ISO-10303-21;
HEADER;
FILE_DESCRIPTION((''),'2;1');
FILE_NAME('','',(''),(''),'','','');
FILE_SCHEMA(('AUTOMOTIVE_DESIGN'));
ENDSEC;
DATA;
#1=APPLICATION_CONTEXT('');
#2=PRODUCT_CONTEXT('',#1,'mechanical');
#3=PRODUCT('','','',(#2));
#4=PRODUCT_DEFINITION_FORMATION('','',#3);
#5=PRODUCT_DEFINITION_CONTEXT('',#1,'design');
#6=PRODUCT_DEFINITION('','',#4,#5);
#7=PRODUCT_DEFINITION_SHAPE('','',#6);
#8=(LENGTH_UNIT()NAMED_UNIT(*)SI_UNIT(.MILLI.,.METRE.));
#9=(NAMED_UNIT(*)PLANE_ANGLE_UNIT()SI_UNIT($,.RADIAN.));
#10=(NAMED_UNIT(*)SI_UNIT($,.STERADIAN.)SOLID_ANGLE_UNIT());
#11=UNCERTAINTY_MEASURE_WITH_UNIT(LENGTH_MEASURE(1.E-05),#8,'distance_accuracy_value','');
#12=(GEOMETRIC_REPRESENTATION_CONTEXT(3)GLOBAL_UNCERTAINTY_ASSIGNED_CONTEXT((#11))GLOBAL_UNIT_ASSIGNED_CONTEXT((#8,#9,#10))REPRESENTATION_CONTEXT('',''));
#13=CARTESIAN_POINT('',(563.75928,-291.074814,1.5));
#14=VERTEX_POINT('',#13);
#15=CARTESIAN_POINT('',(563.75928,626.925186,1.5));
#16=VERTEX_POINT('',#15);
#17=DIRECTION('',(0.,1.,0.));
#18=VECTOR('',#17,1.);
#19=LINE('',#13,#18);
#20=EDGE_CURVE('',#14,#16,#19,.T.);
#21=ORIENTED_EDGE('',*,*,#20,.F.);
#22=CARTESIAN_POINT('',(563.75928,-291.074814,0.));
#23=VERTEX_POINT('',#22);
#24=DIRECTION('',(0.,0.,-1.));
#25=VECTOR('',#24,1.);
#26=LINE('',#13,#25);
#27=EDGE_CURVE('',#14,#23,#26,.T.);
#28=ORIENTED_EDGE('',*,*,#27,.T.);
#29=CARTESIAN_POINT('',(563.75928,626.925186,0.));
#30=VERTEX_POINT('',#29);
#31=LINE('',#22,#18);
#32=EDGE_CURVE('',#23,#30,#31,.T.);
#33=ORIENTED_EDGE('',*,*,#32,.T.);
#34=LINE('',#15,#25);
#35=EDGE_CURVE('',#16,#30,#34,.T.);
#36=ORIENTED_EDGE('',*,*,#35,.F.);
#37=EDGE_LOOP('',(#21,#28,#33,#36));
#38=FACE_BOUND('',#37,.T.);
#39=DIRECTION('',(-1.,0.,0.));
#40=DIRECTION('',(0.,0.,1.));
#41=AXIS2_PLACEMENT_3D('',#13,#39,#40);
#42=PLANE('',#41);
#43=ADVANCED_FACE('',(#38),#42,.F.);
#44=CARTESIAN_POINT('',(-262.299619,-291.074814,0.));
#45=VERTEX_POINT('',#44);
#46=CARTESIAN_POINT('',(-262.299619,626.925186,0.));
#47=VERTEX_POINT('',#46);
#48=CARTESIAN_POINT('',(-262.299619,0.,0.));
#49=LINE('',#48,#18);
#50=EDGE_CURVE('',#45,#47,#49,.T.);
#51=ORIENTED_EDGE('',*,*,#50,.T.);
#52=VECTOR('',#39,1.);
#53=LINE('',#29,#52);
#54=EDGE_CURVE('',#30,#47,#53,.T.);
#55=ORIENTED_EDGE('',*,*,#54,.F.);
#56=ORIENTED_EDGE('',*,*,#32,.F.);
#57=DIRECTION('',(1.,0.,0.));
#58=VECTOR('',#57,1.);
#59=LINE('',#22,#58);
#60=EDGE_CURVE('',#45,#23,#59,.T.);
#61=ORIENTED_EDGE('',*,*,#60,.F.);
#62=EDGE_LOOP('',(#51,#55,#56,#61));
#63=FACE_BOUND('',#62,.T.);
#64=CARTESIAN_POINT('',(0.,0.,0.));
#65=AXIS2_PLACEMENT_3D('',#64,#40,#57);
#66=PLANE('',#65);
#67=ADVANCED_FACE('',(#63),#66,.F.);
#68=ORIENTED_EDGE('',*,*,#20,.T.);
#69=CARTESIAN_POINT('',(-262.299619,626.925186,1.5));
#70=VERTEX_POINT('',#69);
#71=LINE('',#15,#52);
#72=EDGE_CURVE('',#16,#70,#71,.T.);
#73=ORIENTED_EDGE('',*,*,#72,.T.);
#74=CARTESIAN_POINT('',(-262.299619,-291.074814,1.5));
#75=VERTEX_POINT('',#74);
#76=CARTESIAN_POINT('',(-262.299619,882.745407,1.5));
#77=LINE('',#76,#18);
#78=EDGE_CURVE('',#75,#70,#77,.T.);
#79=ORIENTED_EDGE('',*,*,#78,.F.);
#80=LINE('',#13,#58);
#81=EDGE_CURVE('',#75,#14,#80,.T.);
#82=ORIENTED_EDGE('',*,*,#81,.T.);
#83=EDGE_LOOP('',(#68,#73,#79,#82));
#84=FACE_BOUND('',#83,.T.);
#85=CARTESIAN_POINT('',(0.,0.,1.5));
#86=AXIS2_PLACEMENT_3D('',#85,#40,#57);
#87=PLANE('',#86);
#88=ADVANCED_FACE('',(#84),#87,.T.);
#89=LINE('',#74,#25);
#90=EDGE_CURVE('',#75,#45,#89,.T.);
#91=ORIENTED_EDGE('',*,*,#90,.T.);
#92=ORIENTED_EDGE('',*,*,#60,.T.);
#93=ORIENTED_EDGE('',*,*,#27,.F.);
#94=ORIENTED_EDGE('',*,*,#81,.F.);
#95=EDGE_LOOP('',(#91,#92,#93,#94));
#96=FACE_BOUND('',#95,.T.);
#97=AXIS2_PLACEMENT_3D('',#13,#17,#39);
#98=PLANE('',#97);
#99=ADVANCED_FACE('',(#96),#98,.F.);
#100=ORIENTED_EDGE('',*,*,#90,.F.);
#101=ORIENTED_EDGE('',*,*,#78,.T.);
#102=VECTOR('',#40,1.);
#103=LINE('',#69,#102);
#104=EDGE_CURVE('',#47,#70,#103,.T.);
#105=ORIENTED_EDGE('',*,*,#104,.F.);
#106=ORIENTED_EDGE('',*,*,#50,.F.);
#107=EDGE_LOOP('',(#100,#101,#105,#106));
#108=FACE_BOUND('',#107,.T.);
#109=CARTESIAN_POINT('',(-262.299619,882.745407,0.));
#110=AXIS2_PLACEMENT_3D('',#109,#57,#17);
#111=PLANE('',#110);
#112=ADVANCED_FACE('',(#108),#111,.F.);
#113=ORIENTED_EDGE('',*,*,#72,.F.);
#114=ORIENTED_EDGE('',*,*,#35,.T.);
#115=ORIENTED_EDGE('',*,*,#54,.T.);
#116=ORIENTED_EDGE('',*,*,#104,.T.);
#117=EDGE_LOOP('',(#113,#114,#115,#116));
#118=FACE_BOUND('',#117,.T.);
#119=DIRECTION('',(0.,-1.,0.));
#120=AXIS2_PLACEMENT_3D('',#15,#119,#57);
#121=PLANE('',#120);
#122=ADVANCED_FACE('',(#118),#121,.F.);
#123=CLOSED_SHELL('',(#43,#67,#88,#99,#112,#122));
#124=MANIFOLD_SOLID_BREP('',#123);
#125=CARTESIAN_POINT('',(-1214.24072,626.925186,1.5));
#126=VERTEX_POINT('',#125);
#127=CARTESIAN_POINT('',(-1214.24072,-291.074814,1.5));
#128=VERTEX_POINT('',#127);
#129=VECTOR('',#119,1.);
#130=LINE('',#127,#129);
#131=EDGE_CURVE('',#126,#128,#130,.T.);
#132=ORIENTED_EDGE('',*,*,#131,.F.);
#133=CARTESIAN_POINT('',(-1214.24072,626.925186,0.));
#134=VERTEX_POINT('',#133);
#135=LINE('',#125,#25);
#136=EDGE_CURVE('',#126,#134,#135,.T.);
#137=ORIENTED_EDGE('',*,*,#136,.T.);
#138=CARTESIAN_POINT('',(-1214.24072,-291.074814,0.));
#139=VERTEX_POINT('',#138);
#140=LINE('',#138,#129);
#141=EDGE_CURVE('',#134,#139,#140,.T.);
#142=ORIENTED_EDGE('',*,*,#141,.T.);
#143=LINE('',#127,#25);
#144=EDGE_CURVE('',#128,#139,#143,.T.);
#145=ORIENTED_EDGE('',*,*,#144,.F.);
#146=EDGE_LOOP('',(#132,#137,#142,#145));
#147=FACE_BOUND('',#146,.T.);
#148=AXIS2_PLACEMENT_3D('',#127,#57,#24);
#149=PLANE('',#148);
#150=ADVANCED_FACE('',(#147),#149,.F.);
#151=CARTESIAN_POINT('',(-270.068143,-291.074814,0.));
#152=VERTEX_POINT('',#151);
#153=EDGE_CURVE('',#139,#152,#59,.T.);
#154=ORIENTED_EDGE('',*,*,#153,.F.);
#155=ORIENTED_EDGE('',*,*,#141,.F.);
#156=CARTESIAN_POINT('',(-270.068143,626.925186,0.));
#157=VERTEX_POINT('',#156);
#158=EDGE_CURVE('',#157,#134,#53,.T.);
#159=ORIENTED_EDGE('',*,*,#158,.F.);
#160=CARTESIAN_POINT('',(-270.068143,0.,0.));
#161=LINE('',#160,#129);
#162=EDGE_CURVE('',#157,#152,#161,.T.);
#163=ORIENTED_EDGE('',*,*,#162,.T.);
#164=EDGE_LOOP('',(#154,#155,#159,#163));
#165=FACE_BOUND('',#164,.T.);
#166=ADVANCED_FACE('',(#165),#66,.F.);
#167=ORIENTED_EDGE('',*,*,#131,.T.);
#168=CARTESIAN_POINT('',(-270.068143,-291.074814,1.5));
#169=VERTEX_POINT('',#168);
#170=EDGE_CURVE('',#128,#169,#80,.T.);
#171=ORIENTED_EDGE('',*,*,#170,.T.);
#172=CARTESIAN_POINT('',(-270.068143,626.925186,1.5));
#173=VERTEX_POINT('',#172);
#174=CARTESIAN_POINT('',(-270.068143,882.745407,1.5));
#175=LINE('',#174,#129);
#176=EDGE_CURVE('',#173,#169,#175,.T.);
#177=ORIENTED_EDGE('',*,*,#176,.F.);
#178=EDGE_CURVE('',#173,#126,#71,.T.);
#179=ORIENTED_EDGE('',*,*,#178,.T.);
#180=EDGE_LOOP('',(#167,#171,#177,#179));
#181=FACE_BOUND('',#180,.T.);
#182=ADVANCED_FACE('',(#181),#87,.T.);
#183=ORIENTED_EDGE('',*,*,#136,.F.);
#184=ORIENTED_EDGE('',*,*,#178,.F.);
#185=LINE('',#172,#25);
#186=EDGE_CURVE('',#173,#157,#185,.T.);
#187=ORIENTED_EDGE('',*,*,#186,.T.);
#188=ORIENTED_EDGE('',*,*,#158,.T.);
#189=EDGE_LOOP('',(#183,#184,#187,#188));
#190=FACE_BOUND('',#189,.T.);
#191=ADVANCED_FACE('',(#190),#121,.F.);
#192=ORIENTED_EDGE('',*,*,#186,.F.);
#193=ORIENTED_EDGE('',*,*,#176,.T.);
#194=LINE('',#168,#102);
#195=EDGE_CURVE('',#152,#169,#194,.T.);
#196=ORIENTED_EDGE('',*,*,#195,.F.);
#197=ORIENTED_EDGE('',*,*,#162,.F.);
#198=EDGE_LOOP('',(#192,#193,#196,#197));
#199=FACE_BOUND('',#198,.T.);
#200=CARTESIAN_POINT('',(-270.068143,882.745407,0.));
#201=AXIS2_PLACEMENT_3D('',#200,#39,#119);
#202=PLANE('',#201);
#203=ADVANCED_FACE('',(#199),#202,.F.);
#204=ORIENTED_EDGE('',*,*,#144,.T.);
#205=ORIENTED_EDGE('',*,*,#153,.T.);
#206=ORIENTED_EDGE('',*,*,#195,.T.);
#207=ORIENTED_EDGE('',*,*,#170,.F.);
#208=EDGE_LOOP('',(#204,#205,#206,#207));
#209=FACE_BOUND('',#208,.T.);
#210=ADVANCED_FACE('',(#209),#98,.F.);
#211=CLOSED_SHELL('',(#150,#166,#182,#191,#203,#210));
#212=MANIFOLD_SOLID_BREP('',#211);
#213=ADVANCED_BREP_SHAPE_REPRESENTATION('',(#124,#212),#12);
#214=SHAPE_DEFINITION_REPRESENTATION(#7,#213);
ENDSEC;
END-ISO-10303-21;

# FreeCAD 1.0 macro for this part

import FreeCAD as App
import Part
import Sketcher
from FreeCAD import Vector
Q = App.Units.Quantity

doc = App.newDocument("Part")
body = doc.addObject("PartDesign::Body", "Body")
body.AllowCompound = True

# Sketch on XY plane
sketch1 = body.newObject("Sketcher::SketchObject", "Sketch")
sketch1.AttachmentSupport = (doc.getObject("XY_Plane"), [""])
sketch1.MapMode = "FlatFace"
sketch1.addGeometry([
    Part.LineSegment(Vector(-1214, 627, 0), Vector(-1214, -291, 0)),
    Part.LineSegment(Vector(-1214, -291, 0), Vector(564, -291, 0)),
    Part.LineSegment(Vector(564, -291, 0), Vector(564, 627, 0)),
    Part.LineSegment(Vector(564, 627, 0), Vector(-1214, 627, 0)),
], False)
sketch1.addConstraint([
    Sketcher.Constraint("Coincident", 0, 2, 1, 1),
    Sketcher.Constraint("Coincident", 1, 2, 2, 1),
    Sketcher.Constraint("Coincident", 2, 2, 3, 1),
    Sketcher.Constraint("Coincident", 3, 2, 0, 1),
    Sketcher.Constraint("Vertical", 0),
    Sketcher.Constraint("Horizontal", 1),
    Sketcher.Constraint("Vertical", 2),
    Sketcher.Constraint("Horizontal", 3),
    Sketcher.Constraint("DistanceX", 1, 1, 1, 2, Q("1778 mm")),
    Sketcher.Constraint("DistanceY", 0, 2, 0, 1, Q("918 mm")),
    Sketcher.Constraint("DistanceX", 0, 2, -1, 1, Q("1214.24072 mm")),
    Sketcher.Constraint("DistanceY", 0, 2, -1, 1, Q("291.074814 mm")),
])
pad1 = body.newObject("PartDesign::Pad", "Pad")
pad1.Profile = sketch1
pad1.Length = 1.5

# Sketch on XY plane
sketch2 = body.newObject("Sketcher::SketchObject", "Sketch001")
sketch2.AttachmentSupport = (doc.getObject("XY_Plane"), [""])
sketch2.MapMode = "FlatFace"
sketch2.AttachmentOffset = App.Placement(Vector(0, 0, 1.5), App.Rotation())
sketch2.addGeometry([
    Part.LineSegment(Vector(-270, 883, 0), Vector(-270, -761, 0)),
    Part.LineSegment(Vector(-270, -761, 0), Vector(-262, -761, 0)),
    Part.LineSegment(Vector(-262, -761, 0), Vector(-262, 883, 0)),
    Part.LineSegment(Vector(-262, 883, 0), Vector(-270, 883, 0)),
], False)
sketch2.addConstraint([
    Sketcher.Constraint("Coincident", 0, 2, 1, 1),
    Sketcher.Constraint("Coincident", 1, 2, 2, 1),
    Sketcher.Constraint("Coincident", 2, 2, 3, 1),
    Sketcher.Constraint("Coincident", 3, 2, 0, 1),
    Sketcher.Constraint("Vertical", 0),
    Sketcher.Constraint("Horizontal", 1),
    Sketcher.Constraint("Vertical", 2),
    Sketcher.Constraint("Horizontal", 3),
    Sketcher.Constraint("DistanceX", 1, 1, 1, 2, Q("7.768523 mm")),
    Sketcher.Constraint("DistanceY", 0, 2, 0, 1, Q("1643.967023 mm")),
    Sketcher.Constraint("DistanceX", 1, 2, -1, 1, Q("262.299619 mm")),
    Sketcher.Constraint("DistanceY", 0, 2, -1, 1, Q("761.221617 mm")),
])
pocket1 = body.newObject("PartDesign::Pocket", "Pocket")
pocket1.Profile = sketch2
pocket1.Type = "ThroughAll"

doc.recompute()
